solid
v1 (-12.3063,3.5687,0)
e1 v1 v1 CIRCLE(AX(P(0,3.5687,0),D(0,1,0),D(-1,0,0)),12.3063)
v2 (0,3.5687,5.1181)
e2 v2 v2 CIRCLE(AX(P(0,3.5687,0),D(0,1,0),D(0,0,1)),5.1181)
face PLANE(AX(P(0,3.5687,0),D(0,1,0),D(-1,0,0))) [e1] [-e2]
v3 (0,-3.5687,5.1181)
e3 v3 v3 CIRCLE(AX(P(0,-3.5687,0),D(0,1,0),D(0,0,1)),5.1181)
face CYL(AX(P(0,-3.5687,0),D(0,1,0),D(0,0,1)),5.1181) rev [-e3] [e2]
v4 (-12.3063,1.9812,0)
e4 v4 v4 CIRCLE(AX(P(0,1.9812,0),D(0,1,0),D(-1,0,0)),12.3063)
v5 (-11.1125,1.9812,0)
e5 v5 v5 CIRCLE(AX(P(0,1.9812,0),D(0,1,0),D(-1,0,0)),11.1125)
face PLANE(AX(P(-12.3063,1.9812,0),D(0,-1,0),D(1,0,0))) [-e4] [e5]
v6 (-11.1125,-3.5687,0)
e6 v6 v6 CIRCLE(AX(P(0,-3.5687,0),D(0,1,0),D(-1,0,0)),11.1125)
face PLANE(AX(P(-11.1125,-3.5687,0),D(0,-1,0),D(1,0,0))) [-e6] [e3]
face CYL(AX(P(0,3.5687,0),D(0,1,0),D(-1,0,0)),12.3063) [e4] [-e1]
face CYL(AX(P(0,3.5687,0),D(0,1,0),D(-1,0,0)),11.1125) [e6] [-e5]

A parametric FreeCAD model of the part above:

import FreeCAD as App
import Part
import Sketcher
Q = App.Units.Quantity


def add_polygon(sketch, points):
    """Adds a closed chain of lines whose ends are joined by coincident constraints."""
    first, n = sketch.GeometryCount, len(points)
    for a, b in zip(points, points[1:] + points[:1]):
        sketch.addGeometry(Part.LineSegment(App.Vector(*a, 0), App.Vector(*b, 0)), False)
    for i in range(n):
        sketch.addConstraint(Sketcher.Constraint("Coincident", first + i, 2, first + (i + 1) % n, 1))

doc = App.newDocument("Part")
body = doc.addObject("PartDesign::Body", "Body")

# Sketch on XY plane
sketch1 = body.newObject("Sketcher::SketchObject", "Sketch")
sketch1.AttachmentSupport = (doc.getObject("XY_Plane"), [""])
sketch1.MapMode = "FlatFace"
add_polygon(sketch1, [(0, -3.5687), (0, 3.5687), (-12.3063, 3.5687), (-12.3063, 1.9812), (-11.1125, 1.9812), (-11.1125, -3.5687)])  # lines 0-5
sketch1.addConstraint([
    Sketcher.Constraint("Vertical", 0),
    Sketcher.Constraint("Horizontal", 1),
    Sketcher.Constraint("Vertical", 2),
    Sketcher.Constraint("Horizontal", 3),
    Sketcher.Constraint("Vertical", 4),
    Sketcher.Constraint("Horizontal", 5),
    Sketcher.Constraint("Symmetric", 0, 2, 5, 2, -1, 1),
    Sketcher.Constraint("DistanceX", 3, 1, 3, 2, Q("0.047 in")),
    Sketcher.Constraint("DistanceX", 5, 1, 5, 2, Q("0.4375 in")),
    Sketcher.Constraint("DistanceY", 0, 1, 0, 2, Q("0.281 in")),
    Sketcher.Constraint("DistanceY", 2, 2, 2, 1, Q("0.0625 in")),
])
revolution = body.newObject("PartDesign::Revolution", "Revolution")
revolution.Profile = sketch1
revolution.ReferenceAxis = (sketch1, ["V_Axis"])
revolution.Angle = 360

# Sketch on XZ plane
sketch2 = body.newObject("Sketcher::SketchObject", "Sketch001")
sketch2.AttachmentSupport = (doc.getObject("XZ_Plane"), [""])
sketch2.MapMode = "FlatFace"
sketch2.addGeometry(Part.Circle(App.Vector(0, 0, 0), App.Vector(0, 0, 1), 5.1181), False)
sketch2.addConstraint([
    Sketcher.Constraint("Coincident", 0, 3, -1, 1),
    Sketcher.Constraint("Diameter", 0, Q("0.403 in")),
])
pocket1 = body.newObject("PartDesign::Pocket", "Pocket")
pocket1.Profile = sketch2
pocket1.Type = "ThroughAll"
pocket1.Midplane = True

doc.recompute()
